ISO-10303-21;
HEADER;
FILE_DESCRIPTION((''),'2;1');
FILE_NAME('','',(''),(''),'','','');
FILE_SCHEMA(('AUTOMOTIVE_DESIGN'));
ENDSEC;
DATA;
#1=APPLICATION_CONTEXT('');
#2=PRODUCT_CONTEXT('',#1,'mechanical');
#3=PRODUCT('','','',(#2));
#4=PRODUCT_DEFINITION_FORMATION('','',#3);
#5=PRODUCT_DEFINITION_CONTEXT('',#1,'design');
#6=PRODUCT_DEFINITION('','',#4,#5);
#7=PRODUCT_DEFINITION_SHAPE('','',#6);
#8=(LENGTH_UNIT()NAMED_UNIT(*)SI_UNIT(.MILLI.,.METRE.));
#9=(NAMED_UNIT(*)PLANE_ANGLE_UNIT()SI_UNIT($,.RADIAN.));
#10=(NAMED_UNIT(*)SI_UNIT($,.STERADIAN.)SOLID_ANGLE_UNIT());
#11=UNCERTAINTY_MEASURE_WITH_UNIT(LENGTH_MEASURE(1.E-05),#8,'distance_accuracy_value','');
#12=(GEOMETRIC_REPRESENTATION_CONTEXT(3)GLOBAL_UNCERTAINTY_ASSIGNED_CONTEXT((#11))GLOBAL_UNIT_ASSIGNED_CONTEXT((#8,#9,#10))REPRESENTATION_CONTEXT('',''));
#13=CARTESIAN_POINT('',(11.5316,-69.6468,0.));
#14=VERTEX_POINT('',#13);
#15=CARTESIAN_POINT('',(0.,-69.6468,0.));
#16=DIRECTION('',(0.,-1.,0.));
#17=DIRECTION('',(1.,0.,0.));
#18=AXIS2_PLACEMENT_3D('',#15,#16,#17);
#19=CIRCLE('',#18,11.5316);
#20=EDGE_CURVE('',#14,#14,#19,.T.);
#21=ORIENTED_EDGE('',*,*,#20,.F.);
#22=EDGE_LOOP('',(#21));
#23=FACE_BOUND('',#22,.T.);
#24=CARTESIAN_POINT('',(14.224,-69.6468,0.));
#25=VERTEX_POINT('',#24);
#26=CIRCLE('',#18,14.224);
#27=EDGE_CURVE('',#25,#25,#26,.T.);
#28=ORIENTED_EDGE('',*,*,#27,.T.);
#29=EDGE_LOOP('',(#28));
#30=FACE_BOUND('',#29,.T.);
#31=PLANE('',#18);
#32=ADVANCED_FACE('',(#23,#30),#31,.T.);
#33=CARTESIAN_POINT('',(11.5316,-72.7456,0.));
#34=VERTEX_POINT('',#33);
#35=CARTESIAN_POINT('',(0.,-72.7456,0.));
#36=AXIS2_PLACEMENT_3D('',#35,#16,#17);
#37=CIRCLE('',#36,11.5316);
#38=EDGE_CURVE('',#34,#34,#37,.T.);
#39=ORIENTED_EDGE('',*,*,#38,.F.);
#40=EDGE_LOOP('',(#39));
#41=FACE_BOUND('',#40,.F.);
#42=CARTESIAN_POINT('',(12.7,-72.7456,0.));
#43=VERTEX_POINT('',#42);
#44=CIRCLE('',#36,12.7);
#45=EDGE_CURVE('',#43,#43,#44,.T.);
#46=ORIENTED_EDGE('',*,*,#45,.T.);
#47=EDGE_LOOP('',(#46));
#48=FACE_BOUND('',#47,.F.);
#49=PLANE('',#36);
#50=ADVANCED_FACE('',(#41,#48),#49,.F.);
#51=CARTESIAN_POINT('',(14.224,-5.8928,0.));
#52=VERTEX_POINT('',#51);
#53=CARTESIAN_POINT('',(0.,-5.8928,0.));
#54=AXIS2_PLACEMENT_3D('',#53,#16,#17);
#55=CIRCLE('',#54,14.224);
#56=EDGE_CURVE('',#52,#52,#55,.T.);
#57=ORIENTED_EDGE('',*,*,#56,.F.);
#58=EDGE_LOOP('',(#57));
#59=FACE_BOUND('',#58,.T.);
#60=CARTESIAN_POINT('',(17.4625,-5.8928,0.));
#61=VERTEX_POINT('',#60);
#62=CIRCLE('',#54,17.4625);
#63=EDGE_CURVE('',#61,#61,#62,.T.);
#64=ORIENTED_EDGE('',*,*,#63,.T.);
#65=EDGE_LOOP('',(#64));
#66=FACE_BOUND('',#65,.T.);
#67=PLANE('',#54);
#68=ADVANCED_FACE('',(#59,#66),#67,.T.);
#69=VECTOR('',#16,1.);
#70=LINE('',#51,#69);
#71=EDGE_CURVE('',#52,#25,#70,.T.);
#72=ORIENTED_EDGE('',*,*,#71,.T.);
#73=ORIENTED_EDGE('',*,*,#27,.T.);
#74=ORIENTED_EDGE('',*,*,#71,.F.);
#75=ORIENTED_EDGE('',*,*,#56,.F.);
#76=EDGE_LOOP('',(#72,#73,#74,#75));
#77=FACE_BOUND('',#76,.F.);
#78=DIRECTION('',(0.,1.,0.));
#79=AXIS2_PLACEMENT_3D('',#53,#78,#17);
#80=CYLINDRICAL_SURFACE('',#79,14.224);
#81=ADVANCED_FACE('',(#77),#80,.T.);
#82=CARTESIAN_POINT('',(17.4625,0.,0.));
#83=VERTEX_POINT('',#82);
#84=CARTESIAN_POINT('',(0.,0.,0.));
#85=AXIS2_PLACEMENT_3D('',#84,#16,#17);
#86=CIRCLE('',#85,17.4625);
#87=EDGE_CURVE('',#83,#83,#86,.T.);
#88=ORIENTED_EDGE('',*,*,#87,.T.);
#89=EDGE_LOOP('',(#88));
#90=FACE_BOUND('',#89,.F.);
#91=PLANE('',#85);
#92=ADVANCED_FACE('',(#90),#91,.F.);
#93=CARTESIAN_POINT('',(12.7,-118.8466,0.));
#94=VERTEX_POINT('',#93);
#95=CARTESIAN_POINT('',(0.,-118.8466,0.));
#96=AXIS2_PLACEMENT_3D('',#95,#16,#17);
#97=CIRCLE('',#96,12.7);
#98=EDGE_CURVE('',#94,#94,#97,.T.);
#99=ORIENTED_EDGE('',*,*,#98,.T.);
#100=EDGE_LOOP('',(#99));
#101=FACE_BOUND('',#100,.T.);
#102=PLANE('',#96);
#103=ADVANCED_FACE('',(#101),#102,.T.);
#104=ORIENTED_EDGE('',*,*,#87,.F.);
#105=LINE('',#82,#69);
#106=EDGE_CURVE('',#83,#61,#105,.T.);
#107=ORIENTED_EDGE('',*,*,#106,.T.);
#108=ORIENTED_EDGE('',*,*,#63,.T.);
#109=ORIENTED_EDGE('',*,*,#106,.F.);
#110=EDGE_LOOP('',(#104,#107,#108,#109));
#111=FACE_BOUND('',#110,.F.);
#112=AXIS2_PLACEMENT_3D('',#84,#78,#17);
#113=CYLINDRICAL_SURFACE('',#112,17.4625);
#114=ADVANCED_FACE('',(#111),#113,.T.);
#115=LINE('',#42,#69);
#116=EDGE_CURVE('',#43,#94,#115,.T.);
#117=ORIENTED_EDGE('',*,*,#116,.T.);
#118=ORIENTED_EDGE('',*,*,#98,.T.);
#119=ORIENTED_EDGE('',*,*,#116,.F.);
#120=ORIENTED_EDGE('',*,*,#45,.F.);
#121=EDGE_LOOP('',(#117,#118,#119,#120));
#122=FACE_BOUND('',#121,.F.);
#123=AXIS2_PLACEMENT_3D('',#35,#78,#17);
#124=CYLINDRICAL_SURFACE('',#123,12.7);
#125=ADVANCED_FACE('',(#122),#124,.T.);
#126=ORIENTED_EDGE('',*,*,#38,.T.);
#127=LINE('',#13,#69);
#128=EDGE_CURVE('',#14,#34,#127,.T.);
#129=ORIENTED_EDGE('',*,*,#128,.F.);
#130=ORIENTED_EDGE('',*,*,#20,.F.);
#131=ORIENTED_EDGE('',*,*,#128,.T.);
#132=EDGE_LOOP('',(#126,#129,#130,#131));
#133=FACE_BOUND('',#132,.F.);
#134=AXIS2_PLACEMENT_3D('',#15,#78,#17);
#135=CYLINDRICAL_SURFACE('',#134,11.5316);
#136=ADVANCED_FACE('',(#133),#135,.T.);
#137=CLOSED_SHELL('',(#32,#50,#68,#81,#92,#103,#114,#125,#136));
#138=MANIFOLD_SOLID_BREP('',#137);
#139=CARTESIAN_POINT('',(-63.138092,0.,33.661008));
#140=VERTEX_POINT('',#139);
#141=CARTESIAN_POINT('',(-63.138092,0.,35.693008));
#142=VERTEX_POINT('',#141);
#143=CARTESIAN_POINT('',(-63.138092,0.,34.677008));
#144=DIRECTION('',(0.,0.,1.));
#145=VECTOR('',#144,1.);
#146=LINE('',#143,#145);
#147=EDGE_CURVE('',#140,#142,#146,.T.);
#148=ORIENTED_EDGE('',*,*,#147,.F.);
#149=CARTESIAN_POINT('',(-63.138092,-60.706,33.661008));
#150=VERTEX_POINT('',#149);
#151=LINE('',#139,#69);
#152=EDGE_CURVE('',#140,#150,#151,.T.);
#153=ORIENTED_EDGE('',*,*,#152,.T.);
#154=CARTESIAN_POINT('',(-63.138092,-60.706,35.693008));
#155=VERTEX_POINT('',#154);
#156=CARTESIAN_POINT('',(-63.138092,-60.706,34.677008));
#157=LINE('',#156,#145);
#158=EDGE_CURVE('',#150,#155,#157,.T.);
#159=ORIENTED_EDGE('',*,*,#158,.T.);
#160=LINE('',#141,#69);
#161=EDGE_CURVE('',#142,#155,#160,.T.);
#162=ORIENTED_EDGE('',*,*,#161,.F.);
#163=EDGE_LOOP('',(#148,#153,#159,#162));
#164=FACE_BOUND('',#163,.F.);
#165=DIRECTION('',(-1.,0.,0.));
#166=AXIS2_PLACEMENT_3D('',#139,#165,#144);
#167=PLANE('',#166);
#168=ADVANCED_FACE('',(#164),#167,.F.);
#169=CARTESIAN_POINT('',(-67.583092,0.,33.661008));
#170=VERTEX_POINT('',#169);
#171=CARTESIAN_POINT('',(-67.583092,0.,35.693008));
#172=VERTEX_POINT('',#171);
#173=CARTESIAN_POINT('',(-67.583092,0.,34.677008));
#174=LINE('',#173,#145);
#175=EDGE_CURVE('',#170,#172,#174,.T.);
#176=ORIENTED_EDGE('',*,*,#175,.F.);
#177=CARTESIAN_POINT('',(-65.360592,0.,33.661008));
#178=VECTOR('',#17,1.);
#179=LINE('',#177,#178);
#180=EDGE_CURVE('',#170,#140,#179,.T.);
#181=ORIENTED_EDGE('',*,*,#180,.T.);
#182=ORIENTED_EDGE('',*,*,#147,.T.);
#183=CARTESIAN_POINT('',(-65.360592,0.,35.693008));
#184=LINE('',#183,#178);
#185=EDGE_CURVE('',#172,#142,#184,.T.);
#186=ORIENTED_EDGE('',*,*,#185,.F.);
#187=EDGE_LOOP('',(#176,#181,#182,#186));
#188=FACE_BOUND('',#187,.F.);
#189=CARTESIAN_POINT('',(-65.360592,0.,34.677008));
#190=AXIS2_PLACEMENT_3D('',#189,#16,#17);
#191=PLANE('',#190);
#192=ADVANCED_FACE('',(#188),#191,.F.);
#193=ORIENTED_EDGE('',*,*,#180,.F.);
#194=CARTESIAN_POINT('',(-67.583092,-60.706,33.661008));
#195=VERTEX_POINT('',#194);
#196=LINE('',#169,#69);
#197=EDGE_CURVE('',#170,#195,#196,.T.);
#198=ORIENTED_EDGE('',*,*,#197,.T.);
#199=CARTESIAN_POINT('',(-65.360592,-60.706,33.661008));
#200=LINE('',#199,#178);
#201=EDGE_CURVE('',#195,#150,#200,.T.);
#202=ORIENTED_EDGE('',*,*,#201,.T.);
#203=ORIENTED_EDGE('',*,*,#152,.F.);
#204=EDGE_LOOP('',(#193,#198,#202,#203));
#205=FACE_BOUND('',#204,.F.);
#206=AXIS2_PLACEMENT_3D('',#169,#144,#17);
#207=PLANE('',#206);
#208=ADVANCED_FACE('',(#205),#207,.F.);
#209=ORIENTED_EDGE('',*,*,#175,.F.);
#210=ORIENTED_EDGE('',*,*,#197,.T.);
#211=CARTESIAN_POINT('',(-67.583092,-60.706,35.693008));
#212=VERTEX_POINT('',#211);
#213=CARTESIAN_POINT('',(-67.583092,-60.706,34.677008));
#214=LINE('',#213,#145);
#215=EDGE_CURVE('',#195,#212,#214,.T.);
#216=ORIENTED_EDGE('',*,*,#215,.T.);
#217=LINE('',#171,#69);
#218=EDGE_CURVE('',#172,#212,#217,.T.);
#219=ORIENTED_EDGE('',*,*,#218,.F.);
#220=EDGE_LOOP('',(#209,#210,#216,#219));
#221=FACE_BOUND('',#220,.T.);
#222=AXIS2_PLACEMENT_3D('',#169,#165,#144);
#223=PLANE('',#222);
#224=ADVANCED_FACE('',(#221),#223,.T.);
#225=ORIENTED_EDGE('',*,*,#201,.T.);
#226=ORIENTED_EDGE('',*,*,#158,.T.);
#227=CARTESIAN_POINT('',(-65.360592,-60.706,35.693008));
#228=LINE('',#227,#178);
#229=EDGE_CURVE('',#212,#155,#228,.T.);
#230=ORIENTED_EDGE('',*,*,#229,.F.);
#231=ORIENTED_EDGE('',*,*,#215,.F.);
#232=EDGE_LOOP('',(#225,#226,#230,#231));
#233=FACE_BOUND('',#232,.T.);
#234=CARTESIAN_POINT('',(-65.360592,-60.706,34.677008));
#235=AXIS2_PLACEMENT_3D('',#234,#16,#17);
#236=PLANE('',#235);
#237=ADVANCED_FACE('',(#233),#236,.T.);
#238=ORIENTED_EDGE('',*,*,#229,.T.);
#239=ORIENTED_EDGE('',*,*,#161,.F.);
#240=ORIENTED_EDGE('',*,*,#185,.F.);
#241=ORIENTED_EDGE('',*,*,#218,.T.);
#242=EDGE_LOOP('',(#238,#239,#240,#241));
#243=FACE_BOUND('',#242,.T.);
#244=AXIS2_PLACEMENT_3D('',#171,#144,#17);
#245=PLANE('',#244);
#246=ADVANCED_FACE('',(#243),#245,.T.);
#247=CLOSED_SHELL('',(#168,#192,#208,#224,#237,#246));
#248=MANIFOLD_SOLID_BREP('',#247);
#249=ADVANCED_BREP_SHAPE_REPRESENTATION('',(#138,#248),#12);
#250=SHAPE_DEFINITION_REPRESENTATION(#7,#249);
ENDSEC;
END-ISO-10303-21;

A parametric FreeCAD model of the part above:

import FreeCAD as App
import Part
import Sketcher

V = App.Vector
Q = App.Units.Quantity

doc = App.newDocument("Part")
body = doc.addObject("PartDesign::Body", "Body")

# Sketch on XZ plane
sketch1 = doc.addObject("Sketcher::SketchObject", "Sketch")
body.addObject(sketch1)
sketch1.AttachmentSupport = (doc.XZ_Plane, [""])
sketch1.MapMode = "FlatFace"
sketch1.addGeometry(Part.Circle(V(0, 0, 0), V(0, 0, 1), 17), False)
sketch1.addConstraint(Sketcher.Constraint("Coincident", 0, 3, -1, 1))
sketch1.addConstraint(Sketcher.Constraint("Diameter", 0, Q("1.375 in")))
pad1 = doc.addObject("PartDesign::Pad", "Pad")
body.addObject(pad1)
pad1.Profile = sketch1
pad1.Length = Q("0.232 in")

# Sketch on XZ plane
sketch2 = doc.addObject("Sketcher::SketchObject", "Sketch001")
body.addObject(sketch2)
sketch2.AttachmentSupport = (doc.XZ_Plane, [""])
sketch2.MapMode = "FlatFace"
sketch2.AttachmentOffset = App.Placement(V(0, 0, 0.232 * 25.4), App.Rotation())
sketch2.addGeometry(Part.Circle(V(0, 0, 0), V(0, 0, 1), 14), False)
sketch2.addConstraint(Sketcher.Constraint("Coincident", 0, 3, -1, 1))
sketch2.addConstraint(Sketcher.Constraint("Diameter", 0, Q("1.12 in")))
pad2 = doc.addObject("PartDesign::Pad", "Pad001")
body.addObject(pad2)
pad2.Profile = sketch2
pad2.Length = Q("2.51 in")

# Sketch on XZ plane
sketch3 = doc.addObject("Sketcher::SketchObject", "Sketch002")
body.addObject(sketch3)
sketch3.AttachmentSupport = (doc.XZ_Plane, [""])
sketch3.MapMode = "FlatFace"
sketch3.AttachmentOffset = App.Placement(V(0, 0, 2.742 * 25.4), App.Rotation())
sketch3.addGeometry(Part.Circle(V(0, 0, 0), V(0, 0, 1), 12), False)
sketch3.addConstraint(Sketcher.Constraint("Coincident", 0, 3, -1, 1))
sketch3.addConstraint(Sketcher.Constraint("Diameter", 0, Q("0.908 in")))
pad3 = doc.addObject("PartDesign::Pad", "Pad002")
body.addObject(pad3)
pad3.Profile = sketch3
pad3.Length = Q("0.122 in")

# Sketch on XZ plane
sketch4 = doc.addObject("Sketcher::SketchObject", "Sketch003")
body.addObject(sketch4)
sketch4.AttachmentSupport = (doc.XZ_Plane, [""])
sketch4.MapMode = "FlatFace"
sketch4.AttachmentOffset = App.Placement(V(0, 0, 2.864 * 25.4), App.Rotation())
sketch4.addGeometry(Part.Circle(V(0, 0, 0), V(0, 0, 1), 13), False)
sketch4.addConstraint(Sketcher.Constraint("Coincident", 0, 3, -1, 1))
sketch4.addConstraint(Sketcher.Constraint("Diameter", 0, Q("1 in")))
pad4 = doc.addObject("PartDesign::Pad", "Pad003")
body.addObject(pad4)
pad4.Profile = sketch4
pad4.Length = Q("1.815 in")
body2 = doc.addObject("PartDesign::Body", "Body001")

# Sketch on XZ plane
sketch5 = doc.addObject("Sketcher::SketchObject", "Sketch004")
body2.addObject(sketch5)
sketch5.AttachmentSupport = (doc.getObject("XZ_Plane001"), [""])
sketch5.MapMode = "FlatFace"
sketch5.addGeometry(Part.LineSegment(V(-67.6, 35.7, 0), V(-67.6, 33.7, 0)), False)
sketch5.addGeometry(Part.LineSegment(V(-67.6, 33.7, 0), V(-63.1, 33.7, 0)), False)
sketch5.addGeometry(Part.LineSegment(V(-63.1, 33.7, 0), V(-63.1, 35.7, 0)), False)
sketch5.addGeometry(Part.LineSegment(V(-63.1, 35.7, 0), V(-67.6, 35.7, 0)), False)
sketch5.addConstraint(Sketcher.Constraint("Coincident", 0, 2, 1, 1))
sketch5.addConstraint(Sketcher.Constraint("Coincident", 1, 2, 2, 1))
sketch5.addConstraint(Sketcher.Constraint("Coincident", 2, 2, 3, 1))
sketch5.addConstraint(Sketcher.Constraint("Coincident", 3, 2, 0, 1))
sketch5.addConstraint(Sketcher.Constraint("Vertical", 0))
sketch5.addConstraint(Sketcher.Constraint("Horizontal", 1))
sketch5.addConstraint(Sketcher.Constraint("Vertical", 2))
sketch5.addConstraint(Sketcher.Constraint("Horizontal", 3))
sketch5.addConstraint(Sketcher.Constraint("DistanceY", 0, 2, 0, 1, Q("0.08 in")))
sketch5.addConstraint(Sketcher.Constraint("DistanceX", 1, 1, 1, 2, Q("0.175 in")))
sketch5.addConstraint(Sketcher.Constraint("DistanceX", 0, 2, -1, 1, 67.583092))
sketch5.addConstraint(Sketcher.Constraint("DistanceY", -1, 1, 0, 2, 33.661008))
pad5 = doc.addObject("PartDesign::Pad", "Pad004")
body2.addObject(pad5)
pad5.Profile = sketch5
pad5.Length = Q("2.39 in")

doc.recompute()
